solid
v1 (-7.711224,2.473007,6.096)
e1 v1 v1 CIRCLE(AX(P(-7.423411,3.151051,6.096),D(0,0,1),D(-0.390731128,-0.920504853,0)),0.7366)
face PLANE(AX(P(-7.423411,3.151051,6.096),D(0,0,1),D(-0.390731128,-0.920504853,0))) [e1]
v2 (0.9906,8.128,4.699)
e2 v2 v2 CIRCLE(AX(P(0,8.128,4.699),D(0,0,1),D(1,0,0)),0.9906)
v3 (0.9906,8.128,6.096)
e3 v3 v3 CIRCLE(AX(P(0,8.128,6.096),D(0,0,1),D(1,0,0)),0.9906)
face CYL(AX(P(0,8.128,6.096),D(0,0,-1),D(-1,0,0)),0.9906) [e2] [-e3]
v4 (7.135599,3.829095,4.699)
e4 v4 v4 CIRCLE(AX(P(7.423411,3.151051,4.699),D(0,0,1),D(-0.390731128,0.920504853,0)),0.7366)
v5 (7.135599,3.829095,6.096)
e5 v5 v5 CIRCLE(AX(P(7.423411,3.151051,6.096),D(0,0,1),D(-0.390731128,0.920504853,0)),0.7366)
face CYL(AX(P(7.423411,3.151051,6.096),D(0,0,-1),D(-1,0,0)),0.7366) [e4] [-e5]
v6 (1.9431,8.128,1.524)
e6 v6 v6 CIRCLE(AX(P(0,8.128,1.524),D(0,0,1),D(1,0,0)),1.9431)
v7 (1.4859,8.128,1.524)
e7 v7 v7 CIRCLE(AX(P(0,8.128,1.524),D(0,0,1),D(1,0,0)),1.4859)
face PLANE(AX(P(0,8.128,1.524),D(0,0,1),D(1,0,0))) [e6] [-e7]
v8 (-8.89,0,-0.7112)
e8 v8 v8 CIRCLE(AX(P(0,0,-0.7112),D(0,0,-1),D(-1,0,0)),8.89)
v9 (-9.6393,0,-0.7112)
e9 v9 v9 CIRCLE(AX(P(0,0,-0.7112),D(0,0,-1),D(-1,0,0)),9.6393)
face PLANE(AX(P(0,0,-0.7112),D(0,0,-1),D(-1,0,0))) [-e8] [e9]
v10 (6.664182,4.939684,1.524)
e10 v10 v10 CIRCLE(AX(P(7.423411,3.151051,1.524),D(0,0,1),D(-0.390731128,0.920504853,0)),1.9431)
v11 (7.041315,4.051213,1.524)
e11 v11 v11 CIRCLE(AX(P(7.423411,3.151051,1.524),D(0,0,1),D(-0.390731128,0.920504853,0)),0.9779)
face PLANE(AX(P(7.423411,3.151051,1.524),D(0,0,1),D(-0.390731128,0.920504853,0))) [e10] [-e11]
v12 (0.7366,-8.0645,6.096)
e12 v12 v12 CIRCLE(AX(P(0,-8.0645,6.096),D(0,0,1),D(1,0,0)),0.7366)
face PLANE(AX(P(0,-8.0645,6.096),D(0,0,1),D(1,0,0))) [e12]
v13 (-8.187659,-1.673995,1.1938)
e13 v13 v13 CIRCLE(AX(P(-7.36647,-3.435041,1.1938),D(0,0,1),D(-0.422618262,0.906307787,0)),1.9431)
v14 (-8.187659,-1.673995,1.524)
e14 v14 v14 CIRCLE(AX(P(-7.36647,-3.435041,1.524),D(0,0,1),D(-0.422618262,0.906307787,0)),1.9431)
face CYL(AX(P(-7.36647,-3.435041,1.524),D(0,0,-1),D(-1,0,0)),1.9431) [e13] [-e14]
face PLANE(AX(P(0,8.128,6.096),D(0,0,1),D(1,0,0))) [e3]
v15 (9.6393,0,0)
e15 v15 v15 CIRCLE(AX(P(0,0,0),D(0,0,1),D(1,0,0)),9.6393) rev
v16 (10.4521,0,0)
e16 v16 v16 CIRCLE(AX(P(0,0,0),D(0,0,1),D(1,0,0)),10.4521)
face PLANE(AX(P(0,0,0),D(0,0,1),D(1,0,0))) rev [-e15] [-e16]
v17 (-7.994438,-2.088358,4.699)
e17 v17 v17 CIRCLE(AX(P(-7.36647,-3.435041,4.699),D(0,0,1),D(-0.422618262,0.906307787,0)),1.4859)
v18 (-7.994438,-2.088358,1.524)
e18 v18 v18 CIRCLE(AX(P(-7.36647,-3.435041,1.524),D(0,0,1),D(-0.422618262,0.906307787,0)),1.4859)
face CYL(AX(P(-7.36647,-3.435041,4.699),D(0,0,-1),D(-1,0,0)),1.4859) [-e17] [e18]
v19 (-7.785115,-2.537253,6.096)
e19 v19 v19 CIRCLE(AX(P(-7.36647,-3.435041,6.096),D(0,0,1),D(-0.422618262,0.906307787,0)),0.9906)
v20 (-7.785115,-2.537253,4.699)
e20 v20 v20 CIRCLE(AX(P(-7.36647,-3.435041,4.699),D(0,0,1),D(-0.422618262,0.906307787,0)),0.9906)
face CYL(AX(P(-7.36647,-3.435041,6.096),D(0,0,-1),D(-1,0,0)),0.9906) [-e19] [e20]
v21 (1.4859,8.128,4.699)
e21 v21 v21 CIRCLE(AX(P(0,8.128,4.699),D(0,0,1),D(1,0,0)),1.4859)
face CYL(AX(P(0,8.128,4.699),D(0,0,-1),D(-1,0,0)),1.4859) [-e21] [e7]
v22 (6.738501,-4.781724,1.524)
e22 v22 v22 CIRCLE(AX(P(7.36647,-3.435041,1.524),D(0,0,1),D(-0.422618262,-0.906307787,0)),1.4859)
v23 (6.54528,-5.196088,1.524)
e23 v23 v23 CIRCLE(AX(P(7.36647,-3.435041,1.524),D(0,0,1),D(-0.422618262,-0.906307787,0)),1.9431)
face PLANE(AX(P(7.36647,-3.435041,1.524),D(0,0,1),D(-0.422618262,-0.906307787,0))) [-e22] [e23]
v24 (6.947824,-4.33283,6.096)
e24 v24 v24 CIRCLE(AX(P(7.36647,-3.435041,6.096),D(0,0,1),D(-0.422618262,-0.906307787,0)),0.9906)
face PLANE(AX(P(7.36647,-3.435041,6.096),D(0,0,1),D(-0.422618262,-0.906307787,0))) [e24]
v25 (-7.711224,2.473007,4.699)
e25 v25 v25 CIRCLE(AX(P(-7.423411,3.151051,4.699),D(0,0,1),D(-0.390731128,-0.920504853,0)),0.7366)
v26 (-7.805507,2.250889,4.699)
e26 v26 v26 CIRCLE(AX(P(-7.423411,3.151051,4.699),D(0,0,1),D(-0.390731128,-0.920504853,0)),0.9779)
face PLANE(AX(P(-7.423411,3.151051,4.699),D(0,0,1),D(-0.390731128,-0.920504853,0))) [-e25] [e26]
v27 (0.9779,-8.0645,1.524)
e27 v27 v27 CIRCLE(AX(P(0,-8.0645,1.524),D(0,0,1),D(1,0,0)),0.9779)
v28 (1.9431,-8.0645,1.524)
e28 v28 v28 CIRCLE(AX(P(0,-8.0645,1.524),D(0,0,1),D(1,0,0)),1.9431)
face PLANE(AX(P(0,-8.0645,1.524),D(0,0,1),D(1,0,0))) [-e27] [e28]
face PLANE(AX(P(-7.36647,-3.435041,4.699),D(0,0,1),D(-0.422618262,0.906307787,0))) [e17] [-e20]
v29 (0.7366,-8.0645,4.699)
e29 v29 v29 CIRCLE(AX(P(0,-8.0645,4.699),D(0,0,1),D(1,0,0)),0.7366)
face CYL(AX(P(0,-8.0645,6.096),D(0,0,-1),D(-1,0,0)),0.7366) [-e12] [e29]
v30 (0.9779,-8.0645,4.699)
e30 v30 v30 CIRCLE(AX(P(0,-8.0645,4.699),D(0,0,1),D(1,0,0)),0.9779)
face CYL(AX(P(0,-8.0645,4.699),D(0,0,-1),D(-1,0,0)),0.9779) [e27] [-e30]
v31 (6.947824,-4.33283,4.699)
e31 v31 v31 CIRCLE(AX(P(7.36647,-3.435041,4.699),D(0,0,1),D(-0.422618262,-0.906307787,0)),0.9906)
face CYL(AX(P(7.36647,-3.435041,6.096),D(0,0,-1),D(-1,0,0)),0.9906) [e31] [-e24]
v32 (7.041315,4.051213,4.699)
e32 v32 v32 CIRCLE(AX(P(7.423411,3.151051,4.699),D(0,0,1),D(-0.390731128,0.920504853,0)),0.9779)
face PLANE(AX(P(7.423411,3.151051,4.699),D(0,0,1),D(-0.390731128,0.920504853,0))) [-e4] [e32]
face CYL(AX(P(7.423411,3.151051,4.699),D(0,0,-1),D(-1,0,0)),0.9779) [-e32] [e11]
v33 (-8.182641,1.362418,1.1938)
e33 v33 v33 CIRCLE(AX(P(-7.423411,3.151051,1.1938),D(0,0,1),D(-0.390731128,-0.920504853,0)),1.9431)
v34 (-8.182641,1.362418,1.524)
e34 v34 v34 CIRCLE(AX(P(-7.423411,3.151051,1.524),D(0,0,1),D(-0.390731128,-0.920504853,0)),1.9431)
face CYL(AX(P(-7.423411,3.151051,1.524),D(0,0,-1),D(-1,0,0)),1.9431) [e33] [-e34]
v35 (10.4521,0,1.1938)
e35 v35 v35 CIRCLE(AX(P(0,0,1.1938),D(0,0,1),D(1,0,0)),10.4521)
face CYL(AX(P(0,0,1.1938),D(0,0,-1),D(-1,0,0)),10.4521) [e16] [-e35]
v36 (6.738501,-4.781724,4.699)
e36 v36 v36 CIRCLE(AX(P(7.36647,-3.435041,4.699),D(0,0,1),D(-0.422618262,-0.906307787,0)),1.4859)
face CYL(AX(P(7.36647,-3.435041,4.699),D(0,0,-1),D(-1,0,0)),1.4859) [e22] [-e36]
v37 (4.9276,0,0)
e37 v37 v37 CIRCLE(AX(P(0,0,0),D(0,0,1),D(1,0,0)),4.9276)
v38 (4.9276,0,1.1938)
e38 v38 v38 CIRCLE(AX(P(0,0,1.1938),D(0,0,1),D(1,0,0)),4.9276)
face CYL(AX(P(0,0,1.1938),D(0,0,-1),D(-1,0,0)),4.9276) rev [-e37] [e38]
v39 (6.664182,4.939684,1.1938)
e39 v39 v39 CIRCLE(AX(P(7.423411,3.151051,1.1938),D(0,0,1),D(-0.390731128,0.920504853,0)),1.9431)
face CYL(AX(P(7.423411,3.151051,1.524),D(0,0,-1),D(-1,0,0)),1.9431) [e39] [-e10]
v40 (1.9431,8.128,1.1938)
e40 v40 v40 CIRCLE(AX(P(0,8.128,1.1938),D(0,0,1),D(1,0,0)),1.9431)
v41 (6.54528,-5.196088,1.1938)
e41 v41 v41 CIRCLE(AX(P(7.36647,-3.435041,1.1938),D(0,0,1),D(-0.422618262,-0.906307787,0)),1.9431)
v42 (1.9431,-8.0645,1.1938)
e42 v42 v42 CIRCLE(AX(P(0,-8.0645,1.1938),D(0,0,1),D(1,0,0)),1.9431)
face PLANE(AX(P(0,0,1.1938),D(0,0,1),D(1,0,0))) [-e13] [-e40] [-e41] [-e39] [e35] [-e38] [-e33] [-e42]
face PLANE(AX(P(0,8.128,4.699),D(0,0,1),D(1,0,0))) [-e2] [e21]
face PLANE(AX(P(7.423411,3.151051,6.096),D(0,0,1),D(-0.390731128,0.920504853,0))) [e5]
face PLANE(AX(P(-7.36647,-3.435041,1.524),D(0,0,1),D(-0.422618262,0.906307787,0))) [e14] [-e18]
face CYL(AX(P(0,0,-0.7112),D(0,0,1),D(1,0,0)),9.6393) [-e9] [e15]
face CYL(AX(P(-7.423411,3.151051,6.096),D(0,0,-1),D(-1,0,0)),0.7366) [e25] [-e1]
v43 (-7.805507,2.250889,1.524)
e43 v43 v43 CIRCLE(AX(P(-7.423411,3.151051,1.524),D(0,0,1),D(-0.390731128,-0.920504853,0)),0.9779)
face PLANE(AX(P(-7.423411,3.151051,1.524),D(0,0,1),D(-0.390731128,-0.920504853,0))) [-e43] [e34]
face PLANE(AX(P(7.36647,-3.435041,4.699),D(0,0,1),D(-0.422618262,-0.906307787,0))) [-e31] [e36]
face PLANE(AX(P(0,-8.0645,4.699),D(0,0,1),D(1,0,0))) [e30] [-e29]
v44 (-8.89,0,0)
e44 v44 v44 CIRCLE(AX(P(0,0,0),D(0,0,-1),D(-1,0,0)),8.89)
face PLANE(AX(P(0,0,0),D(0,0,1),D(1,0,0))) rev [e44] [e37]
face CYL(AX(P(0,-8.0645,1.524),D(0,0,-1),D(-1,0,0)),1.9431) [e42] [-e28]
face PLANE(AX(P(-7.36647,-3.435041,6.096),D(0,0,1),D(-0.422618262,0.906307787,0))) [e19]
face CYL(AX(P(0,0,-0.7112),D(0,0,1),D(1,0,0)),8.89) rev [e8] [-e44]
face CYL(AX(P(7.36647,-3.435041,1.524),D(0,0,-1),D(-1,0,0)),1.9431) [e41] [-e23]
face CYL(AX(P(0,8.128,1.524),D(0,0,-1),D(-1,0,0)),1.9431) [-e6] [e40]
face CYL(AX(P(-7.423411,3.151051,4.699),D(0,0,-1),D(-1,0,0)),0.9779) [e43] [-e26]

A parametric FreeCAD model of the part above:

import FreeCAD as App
import Part
import Sketcher

V = App.Vector
Q = App.Units.Quantity

doc = App.newDocument("Part")
body = doc.addObject("PartDesign::Body", "Body")

sketch1 = body.newObject("Sketcher::SketchObject", "Sketch")
sketch1.AttachmentSupport = (doc.getObject("XY_Plane"), [""])
sketch1.MapMode = "FlatFace"
sketch1.addGeometry([
    Part.Circle(V(0, 0, 0), V(0, 0, 1), 10.4521),
    Part.Circle(V(0, 0, 0), V(0, 0, 1), 4.9276),
], False)
sketch1.addConstraint([
    Sketcher.Constraint("Coincident", 0, 3, -1, 1),
    Sketcher.Constraint("Coincident", 1, 3, -1, 1),
    Sketcher.Constraint("Diameter", 0, Q("0.823 in")),
    Sketcher.Constraint("Diameter", 1, Q("0.388 in")),
])
pad1 = body.newObject("PartDesign::Pad", "Pad")
pad1.Profile = sketch1
pad1.Length = Q("0.047 in")

sketch2 = body.newObject("Sketcher::SketchObject", "Sketch001")
sketch2.AttachmentSupport = (doc.getObject("XY_Plane"), [""])
sketch2.MapMode = "FlatFace"
sketch2.addGeometry([
    Part.Circle(V(0, 0, 0), V(0, 0, 1), 9.6393),
    Part.Circle(V(0, 0, 0), V(0, 0, 1), 8.89),
], False)
sketch2.addConstraint([
    Sketcher.Constraint("Coincident", 0, 3, -1, 1),
    Sketcher.Constraint("Coincident", 1, 3, -1, 1),
    Sketcher.Constraint("Diameter", 1, Q("0.7 in")),
    Sketcher.Constraint("Diameter", 0, Q("0.759 in")),
])
pad2 = body.newObject("PartDesign::Pad", "Pad001")
pad2.Profile = sketch2
pad2.Length = Q("0.028 in")
pad2.Reversed = True

sketch3 = body.newObject("Sketcher::SketchObject", "Sketch002")
sketch3.AttachmentSupport = (doc.getObject("XY_Plane"), [""])
sketch3.MapMode = "FlatFace"
sketch3.AttachmentOffset = App.Placement(V(0, 0, 0.047 * 25.4), App.Rotation())
sketch3.addGeometry(Part.Circle(V(0, 8.128, 0), V(0, 0, 1), 1.9431), False)
sketch3.addConstraint([
    Sketcher.Constraint("PointOnObject", 0, 3, -2),
    Sketcher.Constraint("Diameter", 0, Q("0.153 in")),
    Sketcher.Constraint("DistanceY", -1, 1, 0, 3, Q("0.32 in")),
])
pad3 = body.newObject("PartDesign::Pad", "Pad002")
pad3.Profile = sketch3
pad3.Length = Q("0.013 in")

sketch4 = body.newObject("Sketcher::SketchObject", "Sketch003")
sketch4.AttachmentSupport = (doc.getObject("XY_Plane"), [""])
sketch4.MapMode = "FlatFace"
sketch4.AttachmentOffset = App.Placement(V(0, 0, 0.06 * 25.4), App.Rotation())
sketch4.addGeometry(Part.Circle(V(0, 8.128, 0), V(0, 0, 1), 1.4859), False)
sketch4.addConstraint([
    Sketcher.Constraint("PointOnObject", 0, 3, -2),
    Sketcher.Constraint("Diameter", 0, Q("0.117 in")),
    Sketcher.Constraint("DistanceY", -1, 1, 0, 3, Q("0.32 in")),
])
pad4 = body.newObject("PartDesign::Pad", "Pad003")
pad4.Profile = sketch4
pad4.Length = Q("0.125 in")

sketch5 = body.newObject("Sketcher::SketchObject", "Sketch004")
sketch5.AttachmentSupport = (doc.getObject("XY_Plane"), [""])
sketch5.MapMode = "FlatFace"
sketch5.AttachmentOffset = App.Placement(V(0, 0, 0.185 * 25.4), App.Rotation())
sketch5.addGeometry(Part.Circle(V(0, 8.128, 0), V(0, 0, 1), 0.9906), False)
sketch5.addConstraint([
    Sketcher.Constraint("PointOnObject", 0, 3, -2),
    Sketcher.Constraint("Diameter", 0, Q("0.078 in")),
    Sketcher.Constraint("DistanceY", -1, 1, 0, 3, Q("0.32 in")),
])
pad5 = body.newObject("PartDesign::Pad", "Pad004")
pad5.Profile = sketch5
pad5.Length = Q("0.055 in")
doc.recompute()

polarpattern = body.newObject("PartDesign::PolarPattern", "PolarPattern")
polarpattern.Originals = [pad3, pad4, pad5]
polarpattern.Axis = (doc.getObject("Z_Axis"), [""])
polarpattern.Angle = 115
polarpattern.Occurrences = 2
body.Tip = polarpattern
doc.recompute()

polarpattern2 = body.newObject("PartDesign::PolarPattern", "PolarPattern001")
polarpattern2.Originals = [pad3, pad4, pad5]
polarpattern2.Axis = (doc.getObject("Z_Axis"), [""])
polarpattern2.Angle = 115
polarpattern2.Occurrences = 2
polarpattern2.Reversed = True
body.Tip = polarpattern2

sketch6 = body.newObject("Sketcher::SketchObject", "Sketch005")
sketch6.AttachmentSupport = (doc.getObject("XY_Plane"), [""])
sketch6.MapMode = "FlatFace"
sketch6.AttachmentOffset = App.Placement(V(0, 0, 0.047 * 25.4), App.Rotation())
sketch6.addGeometry(Part.Circle(V(0, -8.0645, 0), V(0, 0, 1), 1.9431), False)
sketch6.addConstraint([
    Sketcher.Constraint("PointOnObject", 0, 3, -2),
    Sketcher.Constraint("Diameter", 0, Q("0.153 in")),
    Sketcher.Constraint("DistanceY", 0, 3, -1, 1, Q("0.3175 in")),
])
pad6 = body.newObject("PartDesign::Pad", "Pad005")
pad6.Profile = sketch6
pad6.Length = Q("0.013 in")

sketch7 = body.newObject("Sketcher::SketchObject", "Sketch006")
sketch7.AttachmentSupport = (doc.getObject("XY_Plane"), [""])
sketch7.MapMode = "FlatFace"
sketch7.AttachmentOffset = App.Placement(V(0, 0, 0.06 * 25.4), App.Rotation())
sketch7.addGeometry(Part.Circle(V(0, -8.0645, 0), V(0, 0, 1), 0.9779), False)
sketch7.addConstraint([
    Sketcher.Constraint("PointOnObject", 0, 3, -2),
    Sketcher.Constraint("Diameter", 0, Q("0.077 in")),
    Sketcher.Constraint("DistanceY", 0, 3, -1, 1, Q("0.3175 in")),
])
pad7 = body.newObject("PartDesign::Pad", "Pad006")
pad7.Profile = sketch7
pad7.Length = Q("0.125 in")

sketch8 = body.newObject("Sketcher::SketchObject", "Sketch007")
sketch8.AttachmentSupport = (doc.getObject("XY_Plane"), [""])
sketch8.MapMode = "FlatFace"
sketch8.AttachmentOffset = App.Placement(V(0, 0, 0.185 * 25.4), App.Rotation())
sketch8.addGeometry(Part.Circle(V(0, -8.0645, 0), V(0, 0, 1), 0.7366), False)
sketch8.addConstraint([
    Sketcher.Constraint("PointOnObject", 0, 3, -2),
    Sketcher.Constraint("Diameter", 0, Q("0.058 in")),
    Sketcher.Constraint("DistanceY", 0, 3, -1, 1, Q("0.3175 in")),
])
pad8 = body.newObject("PartDesign::Pad", "Pad007")
pad8.Profile = sketch8
pad8.Length = Q("0.055 in")
doc.recompute()

polarpattern3 = body.newObject("PartDesign::PolarPattern", "PolarPattern002")
polarpattern3.Originals = [pad6, pad7, pad8]
polarpattern3.Axis = (doc.getObject("Z_Axis"), [""])
polarpattern3.Angle = 113
polarpattern3.Occurrences = 2
body.Tip = polarpattern3
doc.recompute()

polarpattern4 = body.newObject("PartDesign::PolarPattern", "PolarPattern003")
polarpattern4.Originals = [pad6, pad7, pad8]
polarpattern4.Axis = (doc.getObject("Z_Axis"), [""])
polarpattern4.Angle = 113
polarpattern4.Occurrences = 2
polarpattern4.Reversed = True
body.Tip = polarpattern4

doc.recompute()
